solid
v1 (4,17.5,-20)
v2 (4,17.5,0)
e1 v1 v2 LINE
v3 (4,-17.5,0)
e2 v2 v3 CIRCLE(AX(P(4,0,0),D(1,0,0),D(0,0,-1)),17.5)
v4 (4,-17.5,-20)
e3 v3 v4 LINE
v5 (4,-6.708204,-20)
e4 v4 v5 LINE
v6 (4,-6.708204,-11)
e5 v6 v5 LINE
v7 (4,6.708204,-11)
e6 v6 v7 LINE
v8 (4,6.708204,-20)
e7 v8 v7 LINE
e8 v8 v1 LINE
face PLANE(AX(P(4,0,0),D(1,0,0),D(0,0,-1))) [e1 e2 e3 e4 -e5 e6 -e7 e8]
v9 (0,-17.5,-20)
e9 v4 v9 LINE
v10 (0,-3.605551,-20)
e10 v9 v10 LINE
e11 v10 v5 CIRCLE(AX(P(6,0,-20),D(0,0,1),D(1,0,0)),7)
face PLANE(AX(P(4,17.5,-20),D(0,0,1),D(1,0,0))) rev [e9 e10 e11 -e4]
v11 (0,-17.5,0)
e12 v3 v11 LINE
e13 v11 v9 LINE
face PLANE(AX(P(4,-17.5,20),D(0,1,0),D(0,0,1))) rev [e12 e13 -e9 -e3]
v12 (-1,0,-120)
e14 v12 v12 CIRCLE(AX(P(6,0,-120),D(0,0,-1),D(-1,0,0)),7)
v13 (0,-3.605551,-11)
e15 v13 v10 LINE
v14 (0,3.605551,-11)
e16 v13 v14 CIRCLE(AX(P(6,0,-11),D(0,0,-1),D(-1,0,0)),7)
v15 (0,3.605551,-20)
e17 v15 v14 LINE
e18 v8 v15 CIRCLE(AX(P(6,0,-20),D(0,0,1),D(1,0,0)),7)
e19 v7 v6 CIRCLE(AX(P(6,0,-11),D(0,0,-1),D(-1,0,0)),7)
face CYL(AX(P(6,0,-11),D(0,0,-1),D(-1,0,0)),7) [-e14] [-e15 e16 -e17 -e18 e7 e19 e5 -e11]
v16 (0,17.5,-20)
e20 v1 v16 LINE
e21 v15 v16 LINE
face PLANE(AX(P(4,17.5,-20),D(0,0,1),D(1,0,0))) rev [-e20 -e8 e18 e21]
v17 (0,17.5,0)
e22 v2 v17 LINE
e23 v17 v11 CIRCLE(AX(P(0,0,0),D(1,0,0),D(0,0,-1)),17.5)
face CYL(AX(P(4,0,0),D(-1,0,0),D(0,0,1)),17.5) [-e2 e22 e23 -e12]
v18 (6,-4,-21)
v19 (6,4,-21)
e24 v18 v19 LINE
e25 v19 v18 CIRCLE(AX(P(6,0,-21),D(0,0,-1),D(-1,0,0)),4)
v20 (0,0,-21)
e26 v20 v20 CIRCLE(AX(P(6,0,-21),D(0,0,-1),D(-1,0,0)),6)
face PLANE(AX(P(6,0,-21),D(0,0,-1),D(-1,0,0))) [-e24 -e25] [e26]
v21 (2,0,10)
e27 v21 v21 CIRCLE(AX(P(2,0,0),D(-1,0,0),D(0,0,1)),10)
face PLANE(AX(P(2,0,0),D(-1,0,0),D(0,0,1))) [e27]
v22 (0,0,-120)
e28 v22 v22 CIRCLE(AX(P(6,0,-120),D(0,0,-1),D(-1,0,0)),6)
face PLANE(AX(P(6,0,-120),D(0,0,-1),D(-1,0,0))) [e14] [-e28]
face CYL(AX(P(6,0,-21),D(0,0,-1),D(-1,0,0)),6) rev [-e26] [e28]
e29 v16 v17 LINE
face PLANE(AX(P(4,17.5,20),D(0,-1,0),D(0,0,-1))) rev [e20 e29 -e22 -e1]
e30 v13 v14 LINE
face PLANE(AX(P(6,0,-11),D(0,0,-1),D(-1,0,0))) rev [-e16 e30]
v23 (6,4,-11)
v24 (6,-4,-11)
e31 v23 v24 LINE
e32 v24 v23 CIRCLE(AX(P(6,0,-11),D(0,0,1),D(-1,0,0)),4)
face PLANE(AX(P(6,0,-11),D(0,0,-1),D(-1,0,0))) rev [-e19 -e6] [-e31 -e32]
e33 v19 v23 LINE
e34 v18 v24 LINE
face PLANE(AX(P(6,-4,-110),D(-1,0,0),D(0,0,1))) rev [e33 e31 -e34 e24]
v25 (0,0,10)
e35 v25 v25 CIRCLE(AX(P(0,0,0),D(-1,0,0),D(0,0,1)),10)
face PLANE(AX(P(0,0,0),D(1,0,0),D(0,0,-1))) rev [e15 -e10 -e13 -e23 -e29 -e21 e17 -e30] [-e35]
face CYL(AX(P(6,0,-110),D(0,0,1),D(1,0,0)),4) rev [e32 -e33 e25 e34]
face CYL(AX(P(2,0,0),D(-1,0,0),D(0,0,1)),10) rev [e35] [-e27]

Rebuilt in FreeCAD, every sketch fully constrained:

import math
import FreeCAD as App
import Part
import Sketcher
Q = App.Units.Quantity


def add_polygon(sketch, points):
    """Adds a closed chain of lines whose ends are joined by coincident constraints."""
    first, n = sketch.GeometryCount, len(points)
    for a, b in zip(points, points[1:] + points[:1]):
        sketch.addGeometry(Part.LineSegment(App.Vector(*a, 0), App.Vector(*b, 0)), False)
    for i in range(n):
        sketch.addConstraint(Sketcher.Constraint("Coincident", first + i, 2, first + (i + 1) % n, 1))

doc = App.newDocument("Part")
body = doc.addObject("PartDesign::Body", "Body")

sketch1 = body.newObject("Sketcher::SketchObject", "Sketch")
sketch1.AttachmentSupport = (doc.getObject("YZ_Plane"), [""])
sketch1.MapMode = "FlatFace"
add_polygon(sketch1, [(17.5, 20), (-17.5, 20), (-17.5, -20), (17.5, -20)])
sketch1.addConstraint([
    Sketcher.Constraint("Horizontal", 0),
    Sketcher.Constraint("Vertical", 1),
    Sketcher.Constraint("Horizontal", 2),
    Sketcher.Constraint("Vertical", 3),
    Sketcher.Constraint("Symmetric", 0, 2, 2, 2, -1, 1),
    Sketcher.Constraint("DistanceX", 0, 2, 0, 1, Q("35 mm")),
    Sketcher.Constraint("DistanceY", 1, 2, 1, 1, Q("40 mm")),
])
pad1 = body.newObject("PartDesign::Pad", "Pad")
pad1.Profile = sketch1
pad1.Length = 4

sketch2 = body.newObject("Sketcher::SketchObject", "Sketch001")
sketch2.AttachmentSupport = (doc.getObject("YZ_Plane"), [""])
sketch2.MapMode = "FlatFace"
sketch2.addGeometry(Part.Circle(App.Vector(0, 0, 0), App.Vector(0, 0, 1), 10), False)
sketch2.addConstraint([
    Sketcher.Constraint("Coincident", 0, 3, -1, 1),
    Sketcher.Constraint("Diameter", 0, Q("20 mm")),
])
pocket1 = body.newObject("PartDesign::Pocket", "Pocket")
pocket1.Profile = sketch2
pocket1.Length = 2
pocket1.Reversed = True

sketch3 = body.newObject("Sketcher::SketchObject", "Sketch002")
sketch3.AttachmentSupport = (doc.getObject("YZ_Plane"), [""])
sketch3.MapMode = "FlatFace"
sketch3.addGeometry([
    Part.LineSegment(App.Vector(-17.5, 0, 0), App.Vector(-17.5, 20, 0)),
    Part.LineSegment(App.Vector(-17.5, 20, 0), App.Vector(17.5, 20, 0)),
    Part.LineSegment(App.Vector(17.5, 20, 0), App.Vector(17.5, 0, 0)),
    Part.ArcOfCircle(Part.Circle(App.Vector(0, 0, 0), App.Vector(0, 0, 1), 17.5), math.radians(0), math.radians(180)),
], False)
sketch3.addConstraint([
    Sketcher.Constraint("Coincident", 0, 2, 1, 1),
    Sketcher.Constraint("Coincident", 1, 2, 2, 1),
    Sketcher.Constraint("Tangent", 2, 2, 3, 1),
    Sketcher.Constraint("Tangent", 3, 2, 0, 1),
    Sketcher.Constraint("Vertical", 0),
    Sketcher.Constraint("Horizontal", 1),
    Sketcher.Constraint("Vertical", 2),
    Sketcher.Constraint("Coincident", 3, 3, -1, 1),
    Sketcher.Constraint("Radius", 3, Q("17.5 mm")),
    Sketcher.Constraint("DistanceY", 0, 1, 0, 2, Q("20 mm")),
])
pocket2 = body.newObject("PartDesign::Pocket", "Pocket001")
pocket2.Profile = sketch3
pocket2.Type = "ThroughAll"
pocket2.Reversed = True

sketch4 = body.newObject("Sketcher::SketchObject", "Sketch003")
sketch4.AttachmentSupport = (doc.getObject("XY_Plane"), [""])
sketch4.MapMode = "FlatFace"
sketch4.AttachmentOffset = App.Placement(App.Vector(0, 0, -20), App.Rotation())
sketch4.addGeometry(Part.Circle(App.Vector(6, 0, 0), App.Vector(0, 0, 1), 7), False)
sketch4.addConstraint([
    Sketcher.Constraint("PointOnObject", 0, 3, -1),
    Sketcher.Constraint("Diameter", 0, Q("14 mm")),
    Sketcher.Constraint("DistanceX", -1, 1, 0, 3, Q("6 mm")),
])
pad2 = body.newObject("PartDesign::Pad", "Pad001")
pad2.Profile = sketch4
pad2.Type = "TwoLengths"
pad2.Length = 100
pad2.Length2 = 9
pad2.Reversed = True

sketch5 = body.newObject("Sketcher::SketchObject", "Sketch004")
sketch5.AttachmentSupport = (doc.getObject("XY_Plane"), [""])
sketch5.MapMode = "FlatFace"
sketch5.AttachmentOffset = App.Placement(App.Vector(0, 0, -120), App.Rotation())
sketch5.addGeometry(Part.Circle(App.Vector(6, 0, 0), App.Vector(0, 0, 1), 6), False)
sketch5.addConstraint([
    Sketcher.Constraint("PointOnObject", 0, 3, -1),
    Sketcher.Constraint("Diameter", 0, Q("12 mm")),
    Sketcher.Constraint("DistanceX", -1, 1, 0, 3, Q("6 mm")),
])
pocket3 = body.newObject("PartDesign::Pocket", "Pocket002")
pocket3.Profile = sketch5
pocket3.Length = 99
pocket3.Reversed = True

sketch6 = body.newObject("Sketcher::SketchObject", "Sketch005")
sketch6.AttachmentSupport = (doc.getObject("XY_Plane"), [""])
sketch6.MapMode = "FlatFace"
sketch6.AttachmentOffset = App.Placement(App.Vector(0, 0, -11), App.Rotation())
sketch6.addGeometry([
    Part.LineSegment(App.Vector(6, 4, 0), App.Vector(6, -4, 0)),
    Part.ArcOfCircle(Part.Circle(App.Vector(6, 0, 0), App.Vector(0, 0, 1), 4), math.radians(-90), math.radians(90)),
], False)
sketch6.addConstraint([
    Sketcher.Constraint("Coincident", 0, 1, 1, 2),
    Sketcher.Constraint("Coincident", 1, 1, 0, 2),
    Sketcher.Constraint("Vertical", 0),
    Sketcher.Constraint("PointOnObject", 1, 3, -1),
    Sketcher.Constraint("Vertical", 1, 3, 0, 1),
    Sketcher.Constraint("Radius", 1, Q("4 mm")),
    Sketcher.Constraint("DistanceX", -1, 1, 1, 3, Q("6 mm")),
])
pocket4 = body.newObject("PartDesign::Pocket", "Pocket003")
pocket4.Profile = sketch6
pocket4.Length = 99

doc.recompute()
